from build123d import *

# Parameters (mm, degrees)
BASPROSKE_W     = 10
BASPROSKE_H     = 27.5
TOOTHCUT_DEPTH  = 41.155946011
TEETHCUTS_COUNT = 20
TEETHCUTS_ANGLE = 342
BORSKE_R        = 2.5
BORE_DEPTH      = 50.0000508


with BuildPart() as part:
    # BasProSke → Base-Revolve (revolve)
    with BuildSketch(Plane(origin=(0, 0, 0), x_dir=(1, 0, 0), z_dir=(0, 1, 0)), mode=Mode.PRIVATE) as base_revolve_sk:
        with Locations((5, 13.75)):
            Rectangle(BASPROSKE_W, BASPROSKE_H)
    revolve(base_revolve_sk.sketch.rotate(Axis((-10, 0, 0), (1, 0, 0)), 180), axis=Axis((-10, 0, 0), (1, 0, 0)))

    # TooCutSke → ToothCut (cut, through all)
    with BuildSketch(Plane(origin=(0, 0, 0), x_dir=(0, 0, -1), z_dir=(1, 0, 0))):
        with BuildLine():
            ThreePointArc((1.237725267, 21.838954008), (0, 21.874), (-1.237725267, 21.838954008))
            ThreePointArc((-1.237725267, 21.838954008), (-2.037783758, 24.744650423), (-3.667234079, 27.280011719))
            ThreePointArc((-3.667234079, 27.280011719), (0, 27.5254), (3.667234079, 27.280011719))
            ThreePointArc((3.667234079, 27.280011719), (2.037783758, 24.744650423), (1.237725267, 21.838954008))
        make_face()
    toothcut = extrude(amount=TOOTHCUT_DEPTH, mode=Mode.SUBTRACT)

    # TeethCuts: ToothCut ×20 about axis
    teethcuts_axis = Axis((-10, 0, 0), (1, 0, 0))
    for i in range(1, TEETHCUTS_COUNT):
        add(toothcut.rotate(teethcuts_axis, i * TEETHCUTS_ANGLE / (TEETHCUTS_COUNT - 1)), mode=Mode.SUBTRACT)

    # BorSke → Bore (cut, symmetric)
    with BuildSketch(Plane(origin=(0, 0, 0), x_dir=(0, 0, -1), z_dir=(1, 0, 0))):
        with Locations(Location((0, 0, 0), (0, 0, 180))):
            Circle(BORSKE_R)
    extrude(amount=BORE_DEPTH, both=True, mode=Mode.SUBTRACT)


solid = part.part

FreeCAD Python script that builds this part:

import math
import FreeCAD as App
import Part
import Sketcher
from FreeCAD import Vector
Q = App.Units.Quantity

doc = App.newDocument("Part")
body = doc.addObject("PartDesign::Body", "Body")

# Sketch on XZ plane
sketch1 = body.newObject("Sketcher::SketchObject", "Sketch")
sketch1.AttachmentSupport = (doc.getObject("XZ_Plane"), [""])
sketch1.MapMode = "FlatFace"
sketch1.addGeometry([
    Part.LineSegment(Vector(0, -28, 0), Vector(0, 0, 0)),
    Part.LineSegment(Vector(0, 0, 0), Vector(10, 0, 0)),
    Part.LineSegment(Vector(10, 0, 0), Vector(10, -28, 0)),
    Part.LineSegment(Vector(10, -28, 0), Vector(0, -28, 0)),
], False)
sketch1.addConstraint([
    Sketcher.Constraint("Coincident", 0, 2, 1, 1),
    Sketcher.Constraint("Coincident", 1, 2, 2, 1),
    Sketcher.Constraint("Coincident", 2, 2, 3, 1),
    Sketcher.Constraint("Coincident", 3, 2, 0, 1),
    Sketcher.Constraint("Vertical", 0),
    Sketcher.Constraint("Horizontal", 1),
    Sketcher.Constraint("Vertical", 2),
    Sketcher.Constraint("Horizontal", 3),
    Sketcher.Constraint("Coincident", 0, 2, -1, 1),
    Sketcher.Constraint("DistanceX", 1, 1, 1, 2, Q("10 mm")),
    Sketcher.Constraint("DistanceY", 0, 1, 0, 2, Q("27.5 mm")),
])
revolution = body.newObject("PartDesign::Revolution", "Revolution")
revolution.Profile = sketch1
revolution.ReferenceAxis = (sketch1, ["H_Axis"])
revolution.Angle = 360

# Sketch on YZ plane
sketch2 = body.newObject("Sketcher::SketchObject", "Sketch001")
sketch2.AttachmentSupport = (doc.getObject("YZ_Plane"), [""])
sketch2.MapMode = "FlatFace"
sketch2.addGeometry([
    Part.ArcOfCircle(Part.Circle(Vector(0, 0, 0), Vector(0, 0, 1), 21.9), math.radians(-3.24), math.radians(3.24)),
    Part.ArcOfCircle(Part.Circle(Vector(20.7, -11.2, 0), Vector(0, 0, 1), 10), math.radians(49), math.radians(83)),
    Part.ArcOfCircle(Part.Circle(Vector(0, 0, 0), Vector(0, 0, 1), 27.5), math.radians(-7.66), math.radians(7.66)),
    Part.ArcOfCircle(Part.Circle(Vector(20.7, 11.2, 0), Vector(0, 0, 1), 10), math.radians(-83), math.radians(-49)),
], False)
sketch2.addConstraint([
    Sketcher.Constraint("Coincident", 0, 1, 1, 2),
    Sketcher.Constraint("Coincident", 1, 1, 2, 1),
    Sketcher.Constraint("Coincident", 2, 2, 3, 2),
    Sketcher.Constraint("Coincident", 3, 1, 0, 2),
    Sketcher.Constraint("Coincident", 0, 3, -1, 1),
    Sketcher.Constraint("Coincident", 2, 3, -1, 1),
    Sketcher.Constraint("Equal", 1, 3),
    Sketcher.Constraint("Symmetric", 1, 3, 3, 3, -1),
    Sketcher.Constraint("Radius", 1, Q("10 mm")),
    Sketcher.Constraint("Radius", 0, Q("21.874 mm")),
    Sketcher.Constraint("Radius", 2, Q("27.5254 mm")),
    Sketcher.Constraint("DistanceX", -1, 1, 1, 3, Q("20.667491 mm")),
    Sketcher.Constraint("DistanceY", 1, 3, -1, 1, Q("11.168872 mm")),
])
pocket1 = body.newObject("PartDesign::Pocket", "Pocket")
pocket1.Profile = sketch2
pocket1.Type = "ThroughAll"
pocket1.Reversed = True
doc.recompute()

polarpattern = body.newObject("PartDesign::PolarPattern", "PolarPattern")
polarpattern.Originals = [pocket1]
polarpattern.Axis = (doc.getObject("X_Axis"), [""])
polarpattern.Angle = 360
polarpattern.Occurrences = 20
body.Tip = polarpattern

# Sketch on YZ plane
sketch3 = body.newObject("Sketcher::SketchObject", "Sketch002")
sketch3.AttachmentSupport = (doc.getObject("YZ_Plane"), [""])
sketch3.MapMode = "FlatFace"
sketch3.addGeometry(Part.Circle(Vector(0, 0, 0), Vector(0, 0, 1), 2.5), False)
sketch3.addConstraint([
    Sketcher.Constraint("Coincident", 0, 3, -1, 1),
    Sketcher.Constraint("Diameter", 0, Q("5 mm")),
])
pocket2 = body.newObject("PartDesign::Pocket", "Pocket001")
pocket2.Profile = sketch3
pocket2.Length = 100.000102
pocket2.Midplane = True

doc.recompute()
